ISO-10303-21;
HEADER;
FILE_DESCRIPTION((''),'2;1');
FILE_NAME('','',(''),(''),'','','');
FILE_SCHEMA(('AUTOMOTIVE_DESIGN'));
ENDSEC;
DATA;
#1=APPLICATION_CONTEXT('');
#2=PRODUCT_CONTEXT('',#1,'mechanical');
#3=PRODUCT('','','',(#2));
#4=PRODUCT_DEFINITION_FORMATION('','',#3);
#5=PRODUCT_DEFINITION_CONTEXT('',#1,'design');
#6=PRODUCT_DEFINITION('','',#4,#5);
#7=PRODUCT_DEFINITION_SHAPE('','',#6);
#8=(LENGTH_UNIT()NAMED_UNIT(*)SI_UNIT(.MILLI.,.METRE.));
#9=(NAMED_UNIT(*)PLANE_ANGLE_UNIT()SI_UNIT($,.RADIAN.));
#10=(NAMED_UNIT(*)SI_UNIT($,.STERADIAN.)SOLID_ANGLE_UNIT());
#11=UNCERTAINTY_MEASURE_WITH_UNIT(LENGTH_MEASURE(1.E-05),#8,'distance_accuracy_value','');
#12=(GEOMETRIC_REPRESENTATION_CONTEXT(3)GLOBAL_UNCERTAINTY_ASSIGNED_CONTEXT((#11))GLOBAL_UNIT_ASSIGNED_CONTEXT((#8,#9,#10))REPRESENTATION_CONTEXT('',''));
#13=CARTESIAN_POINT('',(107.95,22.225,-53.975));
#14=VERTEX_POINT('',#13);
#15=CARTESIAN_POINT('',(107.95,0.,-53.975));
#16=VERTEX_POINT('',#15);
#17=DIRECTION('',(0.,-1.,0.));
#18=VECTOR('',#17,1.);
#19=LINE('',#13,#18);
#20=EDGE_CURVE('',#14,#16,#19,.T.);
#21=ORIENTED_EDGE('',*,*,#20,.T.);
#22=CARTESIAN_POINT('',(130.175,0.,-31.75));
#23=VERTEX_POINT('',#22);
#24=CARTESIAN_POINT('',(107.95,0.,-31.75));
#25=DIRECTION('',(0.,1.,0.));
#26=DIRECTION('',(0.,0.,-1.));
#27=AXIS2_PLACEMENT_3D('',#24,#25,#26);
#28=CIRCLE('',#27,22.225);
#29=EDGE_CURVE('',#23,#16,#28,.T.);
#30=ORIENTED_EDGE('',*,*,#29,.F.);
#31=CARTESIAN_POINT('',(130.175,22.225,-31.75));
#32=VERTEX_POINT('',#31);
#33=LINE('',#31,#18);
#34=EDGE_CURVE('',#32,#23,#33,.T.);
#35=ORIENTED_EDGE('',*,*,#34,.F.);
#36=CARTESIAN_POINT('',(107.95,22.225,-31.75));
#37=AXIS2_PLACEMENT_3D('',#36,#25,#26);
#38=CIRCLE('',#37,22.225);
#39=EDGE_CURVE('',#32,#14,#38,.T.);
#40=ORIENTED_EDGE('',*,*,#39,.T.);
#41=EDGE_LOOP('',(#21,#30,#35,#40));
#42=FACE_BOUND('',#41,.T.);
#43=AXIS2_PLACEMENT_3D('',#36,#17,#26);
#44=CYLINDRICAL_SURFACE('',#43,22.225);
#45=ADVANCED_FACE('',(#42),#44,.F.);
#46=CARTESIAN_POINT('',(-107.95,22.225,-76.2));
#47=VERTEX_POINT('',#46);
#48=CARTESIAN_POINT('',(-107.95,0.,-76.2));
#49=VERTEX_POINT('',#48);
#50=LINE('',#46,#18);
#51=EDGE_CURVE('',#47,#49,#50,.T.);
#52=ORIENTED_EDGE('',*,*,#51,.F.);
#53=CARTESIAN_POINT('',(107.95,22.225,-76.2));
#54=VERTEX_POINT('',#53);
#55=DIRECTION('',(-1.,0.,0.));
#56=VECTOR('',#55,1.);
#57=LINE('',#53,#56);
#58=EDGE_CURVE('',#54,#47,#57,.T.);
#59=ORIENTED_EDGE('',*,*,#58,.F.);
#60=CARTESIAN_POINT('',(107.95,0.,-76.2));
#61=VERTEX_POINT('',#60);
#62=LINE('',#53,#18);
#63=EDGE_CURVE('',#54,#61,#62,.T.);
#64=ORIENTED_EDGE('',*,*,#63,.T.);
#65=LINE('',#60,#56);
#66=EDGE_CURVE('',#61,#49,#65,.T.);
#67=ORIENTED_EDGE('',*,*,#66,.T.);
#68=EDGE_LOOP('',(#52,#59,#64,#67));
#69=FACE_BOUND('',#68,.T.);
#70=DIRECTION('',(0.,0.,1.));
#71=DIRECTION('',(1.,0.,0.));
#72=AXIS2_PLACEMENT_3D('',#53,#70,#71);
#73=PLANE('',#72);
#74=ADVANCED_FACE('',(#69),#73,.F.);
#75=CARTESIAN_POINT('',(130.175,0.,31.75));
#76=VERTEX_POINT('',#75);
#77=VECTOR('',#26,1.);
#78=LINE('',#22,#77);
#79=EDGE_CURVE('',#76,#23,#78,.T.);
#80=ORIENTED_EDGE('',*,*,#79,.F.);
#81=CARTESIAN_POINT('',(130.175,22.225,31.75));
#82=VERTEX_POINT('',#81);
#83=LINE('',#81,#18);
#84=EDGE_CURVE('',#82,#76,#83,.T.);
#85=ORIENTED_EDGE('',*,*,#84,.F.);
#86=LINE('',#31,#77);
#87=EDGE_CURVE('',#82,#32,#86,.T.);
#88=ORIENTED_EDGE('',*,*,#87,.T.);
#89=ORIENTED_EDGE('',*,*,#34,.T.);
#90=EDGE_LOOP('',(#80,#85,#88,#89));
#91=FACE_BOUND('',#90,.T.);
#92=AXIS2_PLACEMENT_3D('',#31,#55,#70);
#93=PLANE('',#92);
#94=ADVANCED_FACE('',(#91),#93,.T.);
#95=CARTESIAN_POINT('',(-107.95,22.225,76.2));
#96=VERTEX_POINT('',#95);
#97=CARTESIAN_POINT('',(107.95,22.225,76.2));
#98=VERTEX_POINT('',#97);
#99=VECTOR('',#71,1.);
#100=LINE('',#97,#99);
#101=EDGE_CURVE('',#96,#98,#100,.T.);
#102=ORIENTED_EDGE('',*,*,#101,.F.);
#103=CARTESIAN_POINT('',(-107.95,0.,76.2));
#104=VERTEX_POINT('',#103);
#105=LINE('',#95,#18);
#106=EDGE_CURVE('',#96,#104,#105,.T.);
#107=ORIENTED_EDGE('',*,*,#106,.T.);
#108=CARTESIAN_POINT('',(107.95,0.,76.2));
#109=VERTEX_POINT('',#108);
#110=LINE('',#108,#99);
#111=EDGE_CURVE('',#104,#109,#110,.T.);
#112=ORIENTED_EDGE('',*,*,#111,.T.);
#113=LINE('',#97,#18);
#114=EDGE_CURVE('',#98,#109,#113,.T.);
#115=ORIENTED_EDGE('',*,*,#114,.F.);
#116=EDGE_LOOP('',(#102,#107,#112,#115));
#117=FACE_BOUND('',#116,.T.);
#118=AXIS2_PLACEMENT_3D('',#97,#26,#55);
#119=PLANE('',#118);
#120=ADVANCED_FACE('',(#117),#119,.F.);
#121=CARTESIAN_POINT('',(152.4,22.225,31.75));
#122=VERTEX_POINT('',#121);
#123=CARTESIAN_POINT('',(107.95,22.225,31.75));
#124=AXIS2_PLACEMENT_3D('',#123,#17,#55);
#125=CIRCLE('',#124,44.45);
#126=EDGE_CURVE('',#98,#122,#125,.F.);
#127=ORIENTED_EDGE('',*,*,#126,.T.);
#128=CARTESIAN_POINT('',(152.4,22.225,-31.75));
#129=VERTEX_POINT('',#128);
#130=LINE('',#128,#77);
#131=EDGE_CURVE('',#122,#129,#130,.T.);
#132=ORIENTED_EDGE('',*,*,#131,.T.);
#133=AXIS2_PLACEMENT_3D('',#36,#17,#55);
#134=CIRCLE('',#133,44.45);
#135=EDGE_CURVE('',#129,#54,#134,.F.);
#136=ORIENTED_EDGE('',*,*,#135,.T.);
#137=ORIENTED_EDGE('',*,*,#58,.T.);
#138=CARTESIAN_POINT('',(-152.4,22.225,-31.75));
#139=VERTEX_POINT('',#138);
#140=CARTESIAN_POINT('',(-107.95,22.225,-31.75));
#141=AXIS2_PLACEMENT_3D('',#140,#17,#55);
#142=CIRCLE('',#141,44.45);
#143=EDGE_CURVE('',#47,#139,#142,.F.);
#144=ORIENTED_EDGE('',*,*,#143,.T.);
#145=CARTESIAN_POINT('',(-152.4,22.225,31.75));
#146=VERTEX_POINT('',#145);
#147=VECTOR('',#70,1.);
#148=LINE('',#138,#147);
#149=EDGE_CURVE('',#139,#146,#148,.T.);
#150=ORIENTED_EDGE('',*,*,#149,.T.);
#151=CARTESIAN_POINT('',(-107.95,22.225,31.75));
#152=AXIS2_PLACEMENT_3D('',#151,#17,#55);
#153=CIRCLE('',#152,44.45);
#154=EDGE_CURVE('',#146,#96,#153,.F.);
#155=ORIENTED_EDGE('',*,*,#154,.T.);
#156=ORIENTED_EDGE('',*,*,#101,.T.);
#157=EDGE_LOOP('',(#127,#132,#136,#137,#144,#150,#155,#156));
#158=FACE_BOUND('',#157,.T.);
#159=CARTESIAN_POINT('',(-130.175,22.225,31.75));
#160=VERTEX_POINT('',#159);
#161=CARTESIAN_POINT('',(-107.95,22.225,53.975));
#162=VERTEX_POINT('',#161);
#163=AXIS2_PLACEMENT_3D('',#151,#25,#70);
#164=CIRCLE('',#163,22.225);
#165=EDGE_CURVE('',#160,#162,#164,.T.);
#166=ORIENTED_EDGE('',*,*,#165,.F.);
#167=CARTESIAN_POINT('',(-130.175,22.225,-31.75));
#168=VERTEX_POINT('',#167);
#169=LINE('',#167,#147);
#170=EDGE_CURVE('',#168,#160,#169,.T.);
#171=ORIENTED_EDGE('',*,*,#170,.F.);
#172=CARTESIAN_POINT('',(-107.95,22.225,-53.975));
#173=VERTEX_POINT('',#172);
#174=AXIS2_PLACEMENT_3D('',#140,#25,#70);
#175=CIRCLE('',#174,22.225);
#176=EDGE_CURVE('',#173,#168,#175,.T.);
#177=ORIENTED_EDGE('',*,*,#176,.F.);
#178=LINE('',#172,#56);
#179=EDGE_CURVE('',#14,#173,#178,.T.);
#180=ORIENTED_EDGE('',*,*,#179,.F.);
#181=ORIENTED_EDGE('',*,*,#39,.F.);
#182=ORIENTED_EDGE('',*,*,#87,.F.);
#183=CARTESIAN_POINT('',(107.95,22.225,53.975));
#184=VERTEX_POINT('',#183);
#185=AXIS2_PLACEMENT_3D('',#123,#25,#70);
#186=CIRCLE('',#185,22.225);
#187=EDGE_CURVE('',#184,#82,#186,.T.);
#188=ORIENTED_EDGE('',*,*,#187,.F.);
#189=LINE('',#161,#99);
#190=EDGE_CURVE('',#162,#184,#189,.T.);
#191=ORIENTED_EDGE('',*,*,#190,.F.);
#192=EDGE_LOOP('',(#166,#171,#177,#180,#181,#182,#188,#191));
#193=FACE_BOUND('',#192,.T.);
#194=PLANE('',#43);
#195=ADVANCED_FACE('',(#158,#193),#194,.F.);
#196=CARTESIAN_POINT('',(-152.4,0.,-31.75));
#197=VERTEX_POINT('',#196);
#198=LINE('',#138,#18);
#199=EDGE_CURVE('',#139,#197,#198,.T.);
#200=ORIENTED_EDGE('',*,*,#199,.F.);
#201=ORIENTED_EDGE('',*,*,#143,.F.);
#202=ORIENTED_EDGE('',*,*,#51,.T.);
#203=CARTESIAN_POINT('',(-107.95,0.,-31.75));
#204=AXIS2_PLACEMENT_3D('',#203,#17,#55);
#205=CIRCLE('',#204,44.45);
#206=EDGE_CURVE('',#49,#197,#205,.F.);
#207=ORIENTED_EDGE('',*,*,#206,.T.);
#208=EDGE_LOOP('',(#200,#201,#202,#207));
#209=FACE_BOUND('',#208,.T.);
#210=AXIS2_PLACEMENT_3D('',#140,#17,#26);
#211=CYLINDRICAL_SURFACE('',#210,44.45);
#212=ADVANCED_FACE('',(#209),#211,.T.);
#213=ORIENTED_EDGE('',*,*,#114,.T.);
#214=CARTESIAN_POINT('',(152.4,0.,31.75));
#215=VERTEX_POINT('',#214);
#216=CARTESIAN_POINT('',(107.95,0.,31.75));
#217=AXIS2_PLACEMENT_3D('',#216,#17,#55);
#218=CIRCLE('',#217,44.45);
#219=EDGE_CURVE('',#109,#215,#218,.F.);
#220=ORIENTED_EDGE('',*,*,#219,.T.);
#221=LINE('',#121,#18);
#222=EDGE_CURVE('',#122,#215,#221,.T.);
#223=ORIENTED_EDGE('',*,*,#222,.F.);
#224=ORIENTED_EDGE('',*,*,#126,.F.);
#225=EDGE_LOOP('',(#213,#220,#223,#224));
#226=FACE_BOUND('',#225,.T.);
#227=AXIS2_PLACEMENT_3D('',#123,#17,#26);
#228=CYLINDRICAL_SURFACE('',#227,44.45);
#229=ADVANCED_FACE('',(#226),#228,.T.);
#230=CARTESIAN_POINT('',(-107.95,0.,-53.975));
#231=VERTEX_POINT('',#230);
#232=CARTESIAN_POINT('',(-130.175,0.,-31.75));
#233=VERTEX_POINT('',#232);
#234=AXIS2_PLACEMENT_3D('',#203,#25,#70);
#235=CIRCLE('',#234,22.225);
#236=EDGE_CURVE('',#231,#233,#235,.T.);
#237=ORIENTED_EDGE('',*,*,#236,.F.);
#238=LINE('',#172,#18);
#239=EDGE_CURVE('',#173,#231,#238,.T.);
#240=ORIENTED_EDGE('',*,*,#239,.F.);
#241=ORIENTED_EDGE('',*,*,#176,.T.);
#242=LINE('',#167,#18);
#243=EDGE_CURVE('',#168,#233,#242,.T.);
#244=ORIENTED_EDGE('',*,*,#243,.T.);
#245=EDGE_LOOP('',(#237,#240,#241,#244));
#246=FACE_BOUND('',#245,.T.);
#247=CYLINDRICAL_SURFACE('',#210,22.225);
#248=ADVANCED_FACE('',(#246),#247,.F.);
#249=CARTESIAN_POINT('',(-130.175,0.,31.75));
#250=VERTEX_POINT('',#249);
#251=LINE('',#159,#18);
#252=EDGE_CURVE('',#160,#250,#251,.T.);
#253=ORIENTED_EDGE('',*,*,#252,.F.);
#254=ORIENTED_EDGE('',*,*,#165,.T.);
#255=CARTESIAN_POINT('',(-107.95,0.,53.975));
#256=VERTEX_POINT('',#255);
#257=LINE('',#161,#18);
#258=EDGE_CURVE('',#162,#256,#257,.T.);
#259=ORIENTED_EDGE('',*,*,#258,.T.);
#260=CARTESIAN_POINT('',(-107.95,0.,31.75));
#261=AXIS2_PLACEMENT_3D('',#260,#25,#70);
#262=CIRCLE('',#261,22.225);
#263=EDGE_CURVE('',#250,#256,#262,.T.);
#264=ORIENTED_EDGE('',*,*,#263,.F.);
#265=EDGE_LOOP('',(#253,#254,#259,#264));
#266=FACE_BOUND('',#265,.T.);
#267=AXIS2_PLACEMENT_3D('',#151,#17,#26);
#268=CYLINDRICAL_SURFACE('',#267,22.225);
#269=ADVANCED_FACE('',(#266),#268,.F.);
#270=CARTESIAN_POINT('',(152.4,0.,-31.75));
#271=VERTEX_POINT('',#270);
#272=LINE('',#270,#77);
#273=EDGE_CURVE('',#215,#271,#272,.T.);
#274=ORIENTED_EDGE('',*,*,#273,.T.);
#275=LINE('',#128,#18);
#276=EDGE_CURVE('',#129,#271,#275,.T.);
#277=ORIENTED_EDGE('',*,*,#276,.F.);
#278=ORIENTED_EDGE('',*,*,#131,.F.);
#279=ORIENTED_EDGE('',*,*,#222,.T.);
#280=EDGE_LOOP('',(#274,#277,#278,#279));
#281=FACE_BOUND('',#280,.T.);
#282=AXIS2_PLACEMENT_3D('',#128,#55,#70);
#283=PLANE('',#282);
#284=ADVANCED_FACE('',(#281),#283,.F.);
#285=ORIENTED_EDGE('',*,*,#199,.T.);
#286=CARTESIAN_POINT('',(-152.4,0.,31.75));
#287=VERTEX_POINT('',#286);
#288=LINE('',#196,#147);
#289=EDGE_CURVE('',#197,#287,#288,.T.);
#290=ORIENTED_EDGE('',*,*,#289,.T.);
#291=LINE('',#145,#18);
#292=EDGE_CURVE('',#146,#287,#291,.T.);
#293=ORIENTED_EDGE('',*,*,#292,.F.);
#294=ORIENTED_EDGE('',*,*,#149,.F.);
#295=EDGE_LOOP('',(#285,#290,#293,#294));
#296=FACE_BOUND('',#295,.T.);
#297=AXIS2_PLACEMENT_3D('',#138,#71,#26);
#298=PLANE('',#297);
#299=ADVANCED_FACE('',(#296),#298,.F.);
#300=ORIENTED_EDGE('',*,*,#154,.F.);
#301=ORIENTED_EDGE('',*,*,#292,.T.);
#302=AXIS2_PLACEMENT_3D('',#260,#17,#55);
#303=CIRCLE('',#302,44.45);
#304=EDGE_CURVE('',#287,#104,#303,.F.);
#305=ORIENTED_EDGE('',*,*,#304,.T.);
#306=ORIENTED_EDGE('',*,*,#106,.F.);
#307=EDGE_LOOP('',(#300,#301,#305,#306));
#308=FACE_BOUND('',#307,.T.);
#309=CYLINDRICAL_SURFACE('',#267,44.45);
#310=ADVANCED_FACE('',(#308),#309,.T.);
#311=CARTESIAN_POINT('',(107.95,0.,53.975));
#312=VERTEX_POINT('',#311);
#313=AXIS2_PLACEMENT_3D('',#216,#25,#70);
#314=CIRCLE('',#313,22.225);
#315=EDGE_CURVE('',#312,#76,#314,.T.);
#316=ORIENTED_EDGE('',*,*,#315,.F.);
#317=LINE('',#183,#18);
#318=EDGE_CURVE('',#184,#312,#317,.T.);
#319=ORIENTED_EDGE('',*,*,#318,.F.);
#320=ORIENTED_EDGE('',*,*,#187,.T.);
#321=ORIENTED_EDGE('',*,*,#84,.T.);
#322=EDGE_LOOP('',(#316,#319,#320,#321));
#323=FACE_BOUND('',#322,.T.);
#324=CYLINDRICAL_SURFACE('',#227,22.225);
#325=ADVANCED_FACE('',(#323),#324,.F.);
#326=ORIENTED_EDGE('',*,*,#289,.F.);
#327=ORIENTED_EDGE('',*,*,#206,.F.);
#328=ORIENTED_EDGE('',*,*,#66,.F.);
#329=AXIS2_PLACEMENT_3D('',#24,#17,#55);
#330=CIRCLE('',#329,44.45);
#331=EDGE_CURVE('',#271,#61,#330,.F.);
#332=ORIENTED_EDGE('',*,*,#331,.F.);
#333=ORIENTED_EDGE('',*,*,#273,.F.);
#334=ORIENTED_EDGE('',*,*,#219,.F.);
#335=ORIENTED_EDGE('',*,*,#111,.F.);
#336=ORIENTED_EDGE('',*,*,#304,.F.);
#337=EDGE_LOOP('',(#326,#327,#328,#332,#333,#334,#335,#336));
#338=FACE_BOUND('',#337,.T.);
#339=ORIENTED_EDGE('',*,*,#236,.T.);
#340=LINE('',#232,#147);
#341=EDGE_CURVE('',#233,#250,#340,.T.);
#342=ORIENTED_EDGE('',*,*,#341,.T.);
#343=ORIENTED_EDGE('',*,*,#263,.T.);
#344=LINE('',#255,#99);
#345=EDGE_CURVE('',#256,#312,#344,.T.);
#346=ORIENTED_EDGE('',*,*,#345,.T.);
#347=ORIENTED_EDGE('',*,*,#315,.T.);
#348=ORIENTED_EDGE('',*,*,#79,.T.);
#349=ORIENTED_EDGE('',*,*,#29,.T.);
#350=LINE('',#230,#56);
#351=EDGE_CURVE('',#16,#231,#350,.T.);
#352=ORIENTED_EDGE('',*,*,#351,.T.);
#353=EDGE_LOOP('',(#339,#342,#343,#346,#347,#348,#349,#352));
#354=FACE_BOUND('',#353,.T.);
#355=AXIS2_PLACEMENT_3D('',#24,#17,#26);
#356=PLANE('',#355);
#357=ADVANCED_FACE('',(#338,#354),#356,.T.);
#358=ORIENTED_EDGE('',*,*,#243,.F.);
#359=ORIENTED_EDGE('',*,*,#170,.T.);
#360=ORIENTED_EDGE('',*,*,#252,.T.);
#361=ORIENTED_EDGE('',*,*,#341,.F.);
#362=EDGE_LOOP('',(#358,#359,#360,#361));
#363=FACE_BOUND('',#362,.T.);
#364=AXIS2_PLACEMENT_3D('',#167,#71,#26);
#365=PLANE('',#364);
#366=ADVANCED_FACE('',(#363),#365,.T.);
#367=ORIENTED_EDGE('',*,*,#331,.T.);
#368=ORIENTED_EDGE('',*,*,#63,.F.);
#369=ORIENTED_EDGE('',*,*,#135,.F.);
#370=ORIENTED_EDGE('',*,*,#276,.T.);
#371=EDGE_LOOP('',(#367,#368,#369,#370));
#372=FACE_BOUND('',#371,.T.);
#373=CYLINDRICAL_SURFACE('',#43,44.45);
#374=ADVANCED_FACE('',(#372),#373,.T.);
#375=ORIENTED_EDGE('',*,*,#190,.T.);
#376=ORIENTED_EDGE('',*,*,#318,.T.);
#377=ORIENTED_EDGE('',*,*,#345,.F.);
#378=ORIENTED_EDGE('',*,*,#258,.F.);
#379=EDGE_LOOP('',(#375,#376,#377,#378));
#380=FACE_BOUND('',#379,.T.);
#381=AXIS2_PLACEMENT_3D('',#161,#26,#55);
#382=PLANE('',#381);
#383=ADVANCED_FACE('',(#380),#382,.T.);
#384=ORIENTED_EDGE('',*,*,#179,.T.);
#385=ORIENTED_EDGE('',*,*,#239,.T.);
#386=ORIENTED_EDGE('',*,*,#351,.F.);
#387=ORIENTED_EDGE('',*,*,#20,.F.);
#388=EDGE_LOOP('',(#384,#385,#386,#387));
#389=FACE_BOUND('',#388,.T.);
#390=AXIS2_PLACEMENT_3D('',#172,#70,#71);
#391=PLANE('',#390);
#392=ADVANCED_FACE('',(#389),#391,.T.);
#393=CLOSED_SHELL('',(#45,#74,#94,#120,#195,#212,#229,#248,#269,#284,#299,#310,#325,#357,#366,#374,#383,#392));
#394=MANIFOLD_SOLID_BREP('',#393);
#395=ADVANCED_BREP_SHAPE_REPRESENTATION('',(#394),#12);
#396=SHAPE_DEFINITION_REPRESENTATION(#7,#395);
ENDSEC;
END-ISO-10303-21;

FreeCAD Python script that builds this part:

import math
import FreeCAD as App
import Part
import Sketcher
from FreeCAD import Vector
Q = App.Units.Quantity

doc = App.newDocument("Part")
params = doc.addObject("Spreadsheet::Sheet", "Params")
for row, (alias, value) in enumerate([
    ("sketch1_radius", "1.75 in"),
    ("sketch1_width", "8.5 in"),
    ("sketch1_height", "2.5 in"),
    ("sketch1_radius2", "0.875 in"),
    ("pad1_length", "0.875 in"),
], start=1):
    params.set(f"A{row}", alias)
    params.set(f"B{row}", "=" + value)
    params.setAlias(f"B{row}", alias)

body = doc.addObject("PartDesign::Body", "Body")

# Sketch on XZ plane
sketch1 = body.newObject("Sketcher::SketchObject", "Sketch")
sketch1.AttachmentSupport = (doc.getObject("XZ_Plane"), [""])
sketch1.MapMode = "FlatFace"
sketch1.addGeometry(Part.LineSegment(Vector(108, -76, 0), Vector(-108, -76, 0)), False)
sketch1.addGeometry(Part.ArcOfCircle(Part.Circle(Vector(-108, -32, 0), Vector(0, 0, 1), 44), math.radians(180), math.radians(270)), False)
sketch1.addGeometry(Part.LineSegment(Vector(-152, -32, 0), Vector(-152, 32, 0)), False)
sketch1.addGeometry(Part.ArcOfCircle(Part.Circle(Vector(-108, 32, 0), Vector(0, 0, 1), 44), math.radians(90), math.radians(180)), False)
sketch1.addGeometry(Part.LineSegment(Vector(-108, 76, 0), Vector(108, 76, 0)), False)
sketch1.addGeometry(Part.ArcOfCircle(Part.Circle(Vector(108, 32, 0), Vector(0, 0, 1), 44), math.radians(0), math.radians(90)), False)
sketch1.addGeometry(Part.LineSegment(Vector(152, 32, 0), Vector(152, -32, 0)), False)
sketch1.addGeometry(Part.ArcOfCircle(Part.Circle(Vector(108, -32, 0), Vector(0, 0, 1), 44), math.radians(-90), math.radians(0)), False)
sketch1.addGeometry(Part.LineSegment(Vector(-108, -54, 0), Vector(108, -54, 0)), False)
sketch1.addGeometry(Part.ArcOfCircle(Part.Circle(Vector(108, -32, 0), Vector(0, 0, 1), 22), math.radians(-90), math.radians(0)), False)
sketch1.addGeometry(Part.LineSegment(Vector(130, -32, 0), Vector(130, 32, 0)), False)
sketch1.addGeometry(Part.ArcOfCircle(Part.Circle(Vector(108, 32, 0), Vector(0, 0, 1), 22), math.radians(0), math.radians(90)), False)
sketch1.addGeometry(Part.LineSegment(Vector(108, 54, 0), Vector(-108, 54, 0)), False)
sketch1.addGeometry(Part.ArcOfCircle(Part.Circle(Vector(-108, 32, 0), Vector(0, 0, 1), 22), math.radians(90), math.radians(180)), False)
sketch1.addGeometry(Part.LineSegment(Vector(-130, 32, 0), Vector(-130, -32, 0)), False)
sketch1.addGeometry(Part.ArcOfCircle(Part.Circle(Vector(-108, -32, 0), Vector(0, 0, 1), 22), math.radians(180), math.radians(270)), False)
sketch1.addConstraint(Sketcher.Constraint("Tangent", 0, 2, 1, 2))
sketch1.addConstraint(Sketcher.Constraint("Tangent", 1, 1, 2, 1))
sketch1.addConstraint(Sketcher.Constraint("Tangent", 2, 2, 3, 2))
sketch1.addConstraint(Sketcher.Constraint("Tangent", 3, 1, 4, 1))
sketch1.addConstraint(Sketcher.Constraint("Tangent", 4, 2, 5, 2))
sketch1.addConstraint(Sketcher.Constraint("Tangent", 5, 1, 6, 1))
sketch1.addConstraint(Sketcher.Constraint("Tangent", 6, 2, 7, 2))
sketch1.addConstraint(Sketcher.Constraint("Tangent", 7, 1, 0, 1))
sketch1.addConstraint(Sketcher.Constraint("Tangent", 8, 2, 9, 1))
sketch1.addConstraint(Sketcher.Constraint("Tangent", 9, 2, 10, 1))
sketch1.addConstraint(Sketcher.Constraint("Tangent", 10, 2, 11, 1))
sketch1.addConstraint(Sketcher.Constraint("Tangent", 11, 2, 12, 1))
sketch1.addConstraint(Sketcher.Constraint("Tangent", 12, 2, 13, 1))
sketch1.addConstraint(Sketcher.Constraint("Tangent", 13, 2, 14, 1))
sketch1.addConstraint(Sketcher.Constraint("Tangent", 14, 2, 15, 1))
sketch1.addConstraint(Sketcher.Constraint("Tangent", 15, 2, 8, 1))
sketch1.addConstraint(Sketcher.Constraint("Horizontal", 0))
sketch1.addConstraint(Sketcher.Constraint("Vertical", 2))
sketch1.addConstraint(Sketcher.Constraint("Horizontal", 4))
sketch1.addConstraint(Sketcher.Constraint("Vertical", 6))
sketch1.addConstraint(Sketcher.Constraint("Horizontal", 8))
sketch1.addConstraint(Sketcher.Constraint("Vertical", 10))
sketch1.addConstraint(Sketcher.Constraint("Horizontal", 12))
sketch1.addConstraint(Sketcher.Constraint("Vertical", 14))
sketch1.addConstraint(Sketcher.Constraint("Coincident", 9, 3, 7, 3))
sketch1.addConstraint(Sketcher.Constraint("Coincident", 11, 3, 5, 3))
sketch1.addConstraint(Sketcher.Constraint("Coincident", 13, 3, 3, 3))
sketch1.addConstraint(Sketcher.Constraint("Equal", 1, 3))
sketch1.addConstraint(Sketcher.Constraint("Equal", 3, 5))
sketch1.addConstraint(Sketcher.Constraint("Equal", 5, 7))
sketch1.addConstraint(Sketcher.Constraint("Equal", 13, 15))
sketch1.addConstraint(Sketcher.Constraint("Symmetric", 1, 3, 5, 3, -1, 1))
sketch1.addConstraint(Sketcher.Constraint("Radius", 1, Q("1.75 in")))
sketch1.addConstraint(Sketcher.Constraint("DistanceX", 0, 2, 0, 1, Q("8.5 in")))
sketch1.addConstraint(Sketcher.Constraint("DistanceY", 2, 1, 2, 2, Q("2.5 in")))
sketch1.addConstraint(Sketcher.Constraint("Radius", 9, Q("0.875 in")))
sketch1.setExpression("Constraints[32]", "Params.sketch1_radius")
sketch1.setExpression("Constraints[33]", "Params.sketch1_width")
sketch1.setExpression("Constraints[34]", "Params.sketch1_height")
sketch1.setExpression("Constraints[35]", "Params.sketch1_radius2")
pad1 = body.newObject("PartDesign::Pad", "Pad")
pad1.Profile = sketch1
pad1.setExpression("Length", "Params.pad1_length")
pad1.Reversed = True

doc.recompute()
